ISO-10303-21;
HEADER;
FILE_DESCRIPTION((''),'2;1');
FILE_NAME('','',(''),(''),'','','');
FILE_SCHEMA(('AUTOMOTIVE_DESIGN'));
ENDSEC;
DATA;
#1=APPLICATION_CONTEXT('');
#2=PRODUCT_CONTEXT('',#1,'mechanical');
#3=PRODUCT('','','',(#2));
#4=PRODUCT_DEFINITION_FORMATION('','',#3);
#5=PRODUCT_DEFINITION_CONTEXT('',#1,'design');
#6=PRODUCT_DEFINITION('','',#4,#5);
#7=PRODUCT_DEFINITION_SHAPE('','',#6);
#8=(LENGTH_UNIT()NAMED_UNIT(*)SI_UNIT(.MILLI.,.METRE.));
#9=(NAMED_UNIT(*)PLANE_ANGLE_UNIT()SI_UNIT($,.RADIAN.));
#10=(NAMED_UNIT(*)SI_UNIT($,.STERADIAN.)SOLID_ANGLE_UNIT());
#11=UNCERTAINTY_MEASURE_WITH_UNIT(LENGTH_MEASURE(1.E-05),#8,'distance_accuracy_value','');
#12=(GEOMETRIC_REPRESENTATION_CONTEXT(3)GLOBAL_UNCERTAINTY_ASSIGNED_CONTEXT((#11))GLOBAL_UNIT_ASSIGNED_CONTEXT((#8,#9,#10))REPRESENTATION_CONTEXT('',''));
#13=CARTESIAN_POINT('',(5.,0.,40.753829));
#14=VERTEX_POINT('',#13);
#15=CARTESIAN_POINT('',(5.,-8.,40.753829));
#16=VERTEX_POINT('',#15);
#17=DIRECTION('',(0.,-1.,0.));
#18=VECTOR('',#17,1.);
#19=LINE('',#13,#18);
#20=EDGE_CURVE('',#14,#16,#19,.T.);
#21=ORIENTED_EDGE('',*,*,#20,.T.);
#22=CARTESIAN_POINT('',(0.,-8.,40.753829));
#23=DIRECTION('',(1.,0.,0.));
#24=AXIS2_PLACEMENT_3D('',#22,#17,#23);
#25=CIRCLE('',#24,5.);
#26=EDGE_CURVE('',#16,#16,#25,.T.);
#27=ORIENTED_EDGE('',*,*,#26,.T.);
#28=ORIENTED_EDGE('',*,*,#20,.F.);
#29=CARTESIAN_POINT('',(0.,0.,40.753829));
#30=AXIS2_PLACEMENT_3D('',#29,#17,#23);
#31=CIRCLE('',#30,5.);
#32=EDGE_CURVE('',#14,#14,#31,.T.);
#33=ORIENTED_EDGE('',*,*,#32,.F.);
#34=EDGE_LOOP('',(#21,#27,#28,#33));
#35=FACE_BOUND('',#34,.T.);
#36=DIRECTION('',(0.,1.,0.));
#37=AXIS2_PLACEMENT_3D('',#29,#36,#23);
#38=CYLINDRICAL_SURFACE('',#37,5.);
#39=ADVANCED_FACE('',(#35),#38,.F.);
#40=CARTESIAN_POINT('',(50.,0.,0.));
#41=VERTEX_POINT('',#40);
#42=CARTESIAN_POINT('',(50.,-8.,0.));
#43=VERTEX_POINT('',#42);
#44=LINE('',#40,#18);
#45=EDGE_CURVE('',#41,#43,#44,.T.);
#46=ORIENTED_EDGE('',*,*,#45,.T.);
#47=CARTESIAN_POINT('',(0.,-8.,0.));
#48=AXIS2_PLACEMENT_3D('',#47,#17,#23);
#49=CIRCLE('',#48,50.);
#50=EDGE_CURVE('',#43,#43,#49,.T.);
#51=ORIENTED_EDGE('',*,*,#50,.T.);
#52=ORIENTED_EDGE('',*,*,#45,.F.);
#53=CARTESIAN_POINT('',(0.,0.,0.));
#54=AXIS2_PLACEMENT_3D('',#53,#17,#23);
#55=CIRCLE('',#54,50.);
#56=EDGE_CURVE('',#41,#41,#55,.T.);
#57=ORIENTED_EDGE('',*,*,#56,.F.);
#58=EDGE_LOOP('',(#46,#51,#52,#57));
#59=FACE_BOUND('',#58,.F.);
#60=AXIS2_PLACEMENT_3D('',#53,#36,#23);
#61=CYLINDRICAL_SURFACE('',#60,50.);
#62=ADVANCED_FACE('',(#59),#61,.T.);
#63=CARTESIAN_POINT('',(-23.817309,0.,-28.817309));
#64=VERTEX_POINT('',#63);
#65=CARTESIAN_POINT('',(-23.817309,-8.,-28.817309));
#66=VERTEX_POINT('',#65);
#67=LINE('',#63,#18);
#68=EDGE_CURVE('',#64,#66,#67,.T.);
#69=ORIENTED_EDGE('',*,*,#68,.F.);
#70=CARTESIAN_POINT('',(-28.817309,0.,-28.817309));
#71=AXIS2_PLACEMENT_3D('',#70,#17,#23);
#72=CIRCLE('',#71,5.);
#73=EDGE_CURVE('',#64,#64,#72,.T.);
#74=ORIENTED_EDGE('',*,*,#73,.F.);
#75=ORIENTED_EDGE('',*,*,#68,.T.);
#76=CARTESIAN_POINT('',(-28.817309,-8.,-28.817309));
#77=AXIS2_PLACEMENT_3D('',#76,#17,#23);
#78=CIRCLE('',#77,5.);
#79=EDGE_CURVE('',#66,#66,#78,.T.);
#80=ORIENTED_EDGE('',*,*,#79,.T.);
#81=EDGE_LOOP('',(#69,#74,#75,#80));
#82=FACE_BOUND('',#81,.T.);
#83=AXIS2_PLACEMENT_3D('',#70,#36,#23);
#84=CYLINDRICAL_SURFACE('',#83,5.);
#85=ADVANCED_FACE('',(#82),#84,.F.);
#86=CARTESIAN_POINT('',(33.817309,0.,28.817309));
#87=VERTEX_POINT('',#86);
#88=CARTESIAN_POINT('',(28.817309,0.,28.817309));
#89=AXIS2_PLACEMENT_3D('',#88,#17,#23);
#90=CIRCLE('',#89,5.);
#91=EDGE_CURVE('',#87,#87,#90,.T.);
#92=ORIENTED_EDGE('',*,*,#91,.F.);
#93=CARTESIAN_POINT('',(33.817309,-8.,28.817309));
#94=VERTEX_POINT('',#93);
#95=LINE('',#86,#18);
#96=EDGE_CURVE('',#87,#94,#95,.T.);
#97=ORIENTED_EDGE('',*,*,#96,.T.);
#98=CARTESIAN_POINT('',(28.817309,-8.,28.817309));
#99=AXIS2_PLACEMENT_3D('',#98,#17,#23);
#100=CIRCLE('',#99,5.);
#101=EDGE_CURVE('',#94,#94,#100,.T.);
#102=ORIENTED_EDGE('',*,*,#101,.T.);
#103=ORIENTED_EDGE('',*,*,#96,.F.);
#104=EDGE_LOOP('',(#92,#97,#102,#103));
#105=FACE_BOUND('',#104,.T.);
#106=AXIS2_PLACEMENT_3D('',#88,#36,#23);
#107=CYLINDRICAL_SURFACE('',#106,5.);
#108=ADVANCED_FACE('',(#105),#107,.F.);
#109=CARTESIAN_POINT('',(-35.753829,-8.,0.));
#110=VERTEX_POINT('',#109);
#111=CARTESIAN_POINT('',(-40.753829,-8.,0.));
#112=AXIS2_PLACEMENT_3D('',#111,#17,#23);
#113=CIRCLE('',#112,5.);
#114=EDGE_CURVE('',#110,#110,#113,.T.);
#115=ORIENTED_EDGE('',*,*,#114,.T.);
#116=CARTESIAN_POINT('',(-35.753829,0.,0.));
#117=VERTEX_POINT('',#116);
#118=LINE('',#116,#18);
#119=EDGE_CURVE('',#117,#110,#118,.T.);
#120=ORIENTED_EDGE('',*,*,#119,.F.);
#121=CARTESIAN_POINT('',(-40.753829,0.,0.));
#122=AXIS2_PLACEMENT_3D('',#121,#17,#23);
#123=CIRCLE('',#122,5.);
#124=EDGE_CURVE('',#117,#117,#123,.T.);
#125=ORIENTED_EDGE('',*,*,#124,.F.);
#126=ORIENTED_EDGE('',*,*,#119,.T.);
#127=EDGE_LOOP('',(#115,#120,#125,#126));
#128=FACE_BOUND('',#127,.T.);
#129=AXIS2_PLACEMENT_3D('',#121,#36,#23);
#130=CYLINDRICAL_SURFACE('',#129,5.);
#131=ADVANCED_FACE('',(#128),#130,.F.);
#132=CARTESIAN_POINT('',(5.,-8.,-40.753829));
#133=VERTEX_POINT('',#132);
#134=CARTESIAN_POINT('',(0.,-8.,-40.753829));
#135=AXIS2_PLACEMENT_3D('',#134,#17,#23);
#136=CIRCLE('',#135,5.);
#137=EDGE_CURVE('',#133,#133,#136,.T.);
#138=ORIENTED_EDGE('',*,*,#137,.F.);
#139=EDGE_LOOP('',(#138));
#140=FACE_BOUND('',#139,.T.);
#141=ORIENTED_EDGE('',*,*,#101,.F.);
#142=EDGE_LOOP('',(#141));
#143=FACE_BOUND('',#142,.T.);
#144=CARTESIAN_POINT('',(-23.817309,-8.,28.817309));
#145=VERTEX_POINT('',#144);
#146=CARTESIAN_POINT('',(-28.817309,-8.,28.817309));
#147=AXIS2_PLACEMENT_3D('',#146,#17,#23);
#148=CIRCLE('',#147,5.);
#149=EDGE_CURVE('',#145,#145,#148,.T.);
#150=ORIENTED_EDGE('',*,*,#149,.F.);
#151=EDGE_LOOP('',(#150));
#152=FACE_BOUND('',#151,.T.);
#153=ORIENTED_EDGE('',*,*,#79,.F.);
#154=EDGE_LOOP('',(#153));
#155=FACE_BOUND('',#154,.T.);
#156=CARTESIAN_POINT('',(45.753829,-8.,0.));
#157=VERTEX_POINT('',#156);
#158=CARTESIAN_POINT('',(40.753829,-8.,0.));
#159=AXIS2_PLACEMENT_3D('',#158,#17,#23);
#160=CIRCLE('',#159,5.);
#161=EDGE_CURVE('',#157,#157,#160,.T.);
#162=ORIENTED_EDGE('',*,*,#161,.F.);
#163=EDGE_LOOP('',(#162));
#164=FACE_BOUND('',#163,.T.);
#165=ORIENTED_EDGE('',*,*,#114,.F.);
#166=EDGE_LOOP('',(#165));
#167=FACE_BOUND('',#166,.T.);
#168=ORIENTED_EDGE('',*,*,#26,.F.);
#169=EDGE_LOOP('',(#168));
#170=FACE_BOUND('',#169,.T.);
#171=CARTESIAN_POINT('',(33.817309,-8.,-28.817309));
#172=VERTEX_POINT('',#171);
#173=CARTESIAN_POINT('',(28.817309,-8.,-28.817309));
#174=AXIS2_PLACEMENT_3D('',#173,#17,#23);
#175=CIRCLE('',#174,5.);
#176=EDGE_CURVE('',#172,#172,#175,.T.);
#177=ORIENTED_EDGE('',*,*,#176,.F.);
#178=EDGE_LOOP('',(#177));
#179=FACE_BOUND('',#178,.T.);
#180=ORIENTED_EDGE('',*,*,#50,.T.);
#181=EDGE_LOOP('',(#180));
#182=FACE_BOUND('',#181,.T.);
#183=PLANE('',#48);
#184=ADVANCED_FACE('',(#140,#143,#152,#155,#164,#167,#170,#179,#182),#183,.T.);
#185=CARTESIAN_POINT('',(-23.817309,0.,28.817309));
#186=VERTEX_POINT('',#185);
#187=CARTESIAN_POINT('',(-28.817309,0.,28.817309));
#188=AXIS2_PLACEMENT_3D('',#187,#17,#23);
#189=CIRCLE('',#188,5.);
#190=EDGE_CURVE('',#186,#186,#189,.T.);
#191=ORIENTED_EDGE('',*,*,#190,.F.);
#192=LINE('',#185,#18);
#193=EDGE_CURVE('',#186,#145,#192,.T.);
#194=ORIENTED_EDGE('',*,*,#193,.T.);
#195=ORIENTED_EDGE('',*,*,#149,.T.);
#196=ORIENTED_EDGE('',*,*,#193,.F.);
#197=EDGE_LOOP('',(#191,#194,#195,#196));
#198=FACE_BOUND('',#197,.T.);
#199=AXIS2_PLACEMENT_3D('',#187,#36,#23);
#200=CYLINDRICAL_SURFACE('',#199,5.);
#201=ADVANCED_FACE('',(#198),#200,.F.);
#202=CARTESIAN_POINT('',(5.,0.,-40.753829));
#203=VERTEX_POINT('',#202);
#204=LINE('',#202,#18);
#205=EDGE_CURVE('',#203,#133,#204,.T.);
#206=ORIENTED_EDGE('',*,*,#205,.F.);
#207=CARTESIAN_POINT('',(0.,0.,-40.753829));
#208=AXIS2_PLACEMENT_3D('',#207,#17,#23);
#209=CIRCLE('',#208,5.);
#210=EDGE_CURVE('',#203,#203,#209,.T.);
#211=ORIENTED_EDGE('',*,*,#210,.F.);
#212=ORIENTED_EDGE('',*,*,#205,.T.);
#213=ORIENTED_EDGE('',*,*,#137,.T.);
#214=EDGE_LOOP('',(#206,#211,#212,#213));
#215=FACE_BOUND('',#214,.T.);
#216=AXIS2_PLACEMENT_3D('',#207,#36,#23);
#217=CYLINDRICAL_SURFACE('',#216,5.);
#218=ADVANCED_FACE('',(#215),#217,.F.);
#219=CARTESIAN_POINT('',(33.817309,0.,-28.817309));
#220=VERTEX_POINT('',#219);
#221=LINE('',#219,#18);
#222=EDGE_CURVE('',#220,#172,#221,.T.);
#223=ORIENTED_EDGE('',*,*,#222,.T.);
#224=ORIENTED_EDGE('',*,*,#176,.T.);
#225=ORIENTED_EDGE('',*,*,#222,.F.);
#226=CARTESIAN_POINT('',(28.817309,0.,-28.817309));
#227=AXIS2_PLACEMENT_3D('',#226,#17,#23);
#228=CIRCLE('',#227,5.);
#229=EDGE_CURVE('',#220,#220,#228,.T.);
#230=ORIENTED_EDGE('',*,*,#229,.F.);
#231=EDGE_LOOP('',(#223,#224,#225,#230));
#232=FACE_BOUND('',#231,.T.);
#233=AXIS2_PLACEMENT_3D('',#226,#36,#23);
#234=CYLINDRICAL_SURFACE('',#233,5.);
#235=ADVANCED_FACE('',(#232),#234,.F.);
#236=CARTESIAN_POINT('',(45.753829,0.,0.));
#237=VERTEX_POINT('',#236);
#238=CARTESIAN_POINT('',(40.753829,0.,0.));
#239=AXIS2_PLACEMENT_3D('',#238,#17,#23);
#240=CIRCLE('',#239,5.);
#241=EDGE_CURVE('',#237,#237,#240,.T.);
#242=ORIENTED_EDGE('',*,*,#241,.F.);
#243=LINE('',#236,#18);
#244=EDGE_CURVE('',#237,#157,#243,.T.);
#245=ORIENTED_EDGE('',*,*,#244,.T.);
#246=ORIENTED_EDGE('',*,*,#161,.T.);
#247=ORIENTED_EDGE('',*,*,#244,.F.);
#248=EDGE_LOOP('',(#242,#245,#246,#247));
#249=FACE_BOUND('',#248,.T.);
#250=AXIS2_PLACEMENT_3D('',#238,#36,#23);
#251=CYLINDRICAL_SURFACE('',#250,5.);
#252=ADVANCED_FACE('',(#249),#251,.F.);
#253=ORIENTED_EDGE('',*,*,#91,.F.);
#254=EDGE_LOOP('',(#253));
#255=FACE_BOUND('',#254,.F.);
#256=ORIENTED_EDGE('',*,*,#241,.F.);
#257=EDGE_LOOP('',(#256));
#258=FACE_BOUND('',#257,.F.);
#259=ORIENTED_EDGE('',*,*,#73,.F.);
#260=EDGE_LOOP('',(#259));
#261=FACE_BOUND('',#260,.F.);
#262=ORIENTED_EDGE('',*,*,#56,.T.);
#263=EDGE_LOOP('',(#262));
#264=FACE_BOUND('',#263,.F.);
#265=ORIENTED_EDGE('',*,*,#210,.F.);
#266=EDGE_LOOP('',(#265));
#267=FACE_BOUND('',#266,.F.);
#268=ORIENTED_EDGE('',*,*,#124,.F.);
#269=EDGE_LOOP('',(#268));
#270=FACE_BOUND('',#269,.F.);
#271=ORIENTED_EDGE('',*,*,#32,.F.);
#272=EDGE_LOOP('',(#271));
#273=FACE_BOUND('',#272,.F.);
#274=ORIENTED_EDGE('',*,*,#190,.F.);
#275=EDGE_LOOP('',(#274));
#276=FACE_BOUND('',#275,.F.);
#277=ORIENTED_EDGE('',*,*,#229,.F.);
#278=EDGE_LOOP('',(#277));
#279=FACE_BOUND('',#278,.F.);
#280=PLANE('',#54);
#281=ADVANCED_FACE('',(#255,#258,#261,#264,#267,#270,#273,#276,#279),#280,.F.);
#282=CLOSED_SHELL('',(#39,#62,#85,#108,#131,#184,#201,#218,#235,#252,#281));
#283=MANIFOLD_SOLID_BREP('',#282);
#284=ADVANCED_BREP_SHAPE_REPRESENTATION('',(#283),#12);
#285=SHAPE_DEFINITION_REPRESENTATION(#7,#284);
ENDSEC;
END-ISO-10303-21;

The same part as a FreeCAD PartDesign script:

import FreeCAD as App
import Part
import Sketcher
from FreeCAD import Vector

doc = App.newDocument("Part")
body = doc.addObject("PartDesign::Body", "Body")

# Sketch on XZ plane
sketch1 = doc.addObject("Sketcher::SketchObject", "Sketch")
body.addObject(sketch1)
sketch1.AttachmentSupport = (doc.XZ_Plane, [""])
sketch1.MapMode = "FlatFace"
sketch1.addGeometry([
    Part.Circle(Vector(0, 0, 0), Vector(0, 0, 1), 50),  # 0
    Part.Circle(Vector(-29, -29, 0), Vector(0, 0, 1), 5),  # 1
    Part.Circle(Vector(-41, 0, 0), Vector(0, 0, 1), 5),  # 2
    Part.Circle(Vector(0, -41, 0), Vector(0, 0, 1), 5),  # 3
    Part.Circle(Vector(29, -29, 0), Vector(0, 0, 1), 5),  # 4
    Part.Circle(Vector(41, 0, 0), Vector(0, 0, 1), 5),  # 5
    Part.Circle(Vector(-29, 29, 0), Vector(0, 0, 1), 5),  # 6
    Part.Circle(Vector(0, 41, 0), Vector(0, 0, 1), 5),  # 7
    Part.Circle(Vector(29, 29, 0), Vector(0, 0, 1), 5),  # 8
], False)
sketch1.addConstraint([
    Sketcher.Constraint("Coincident", 0, 3, -1, 1),
    Sketcher.Constraint("Equal", 1, 2),
    Sketcher.Constraint("Equal", 2, 3),
    Sketcher.Constraint("Equal", 3, 4),
    Sketcher.Constraint("Equal", 4, 5),
    Sketcher.Constraint("Equal", 5, 6),
    Sketcher.Constraint("Equal", 6, 7),
    Sketcher.Constraint("Equal", 7, 8),
    Sketcher.Constraint("Symmetric", 2, 3, 5, 3, -1, 1),
    Sketcher.Constraint("Symmetric", 4, 3, 6, 3, -1, 1),
    Sketcher.Constraint("Symmetric", 3, 3, 7, 3, -1, 1),
    Sketcher.Constraint("Symmetric", 1, 3, 8, 3, -1, 1),
    Sketcher.Constraint("Symmetric", 1, 3, 4, 3, -2),
    Sketcher.Constraint("PointOnObject", 2, 3, -1),
    Sketcher.Constraint("PointOnObject", 3, 3, -2),
    Sketcher.Constraint("Diameter", 0, 100.0),
    Sketcher.Constraint("Diameter", 1, 10.0),
    Sketcher.Constraint("DistanceX", 1, 3, -1, 1, 28.817309),
    Sketcher.Constraint("DistanceY", 1, 3, -1, 1, 28.817309),
    Sketcher.Constraint("DistanceX", 2, 3, -1, 1, 40.753829),
    Sketcher.Constraint("DistanceY", 3, 3, -1, 1, 40.753829),
])
pad1 = doc.addObject("PartDesign::Pad", "Pad")
body.addObject(pad1)
pad1.Profile = sketch1
pad1.Length = 8

doc.recompute()
